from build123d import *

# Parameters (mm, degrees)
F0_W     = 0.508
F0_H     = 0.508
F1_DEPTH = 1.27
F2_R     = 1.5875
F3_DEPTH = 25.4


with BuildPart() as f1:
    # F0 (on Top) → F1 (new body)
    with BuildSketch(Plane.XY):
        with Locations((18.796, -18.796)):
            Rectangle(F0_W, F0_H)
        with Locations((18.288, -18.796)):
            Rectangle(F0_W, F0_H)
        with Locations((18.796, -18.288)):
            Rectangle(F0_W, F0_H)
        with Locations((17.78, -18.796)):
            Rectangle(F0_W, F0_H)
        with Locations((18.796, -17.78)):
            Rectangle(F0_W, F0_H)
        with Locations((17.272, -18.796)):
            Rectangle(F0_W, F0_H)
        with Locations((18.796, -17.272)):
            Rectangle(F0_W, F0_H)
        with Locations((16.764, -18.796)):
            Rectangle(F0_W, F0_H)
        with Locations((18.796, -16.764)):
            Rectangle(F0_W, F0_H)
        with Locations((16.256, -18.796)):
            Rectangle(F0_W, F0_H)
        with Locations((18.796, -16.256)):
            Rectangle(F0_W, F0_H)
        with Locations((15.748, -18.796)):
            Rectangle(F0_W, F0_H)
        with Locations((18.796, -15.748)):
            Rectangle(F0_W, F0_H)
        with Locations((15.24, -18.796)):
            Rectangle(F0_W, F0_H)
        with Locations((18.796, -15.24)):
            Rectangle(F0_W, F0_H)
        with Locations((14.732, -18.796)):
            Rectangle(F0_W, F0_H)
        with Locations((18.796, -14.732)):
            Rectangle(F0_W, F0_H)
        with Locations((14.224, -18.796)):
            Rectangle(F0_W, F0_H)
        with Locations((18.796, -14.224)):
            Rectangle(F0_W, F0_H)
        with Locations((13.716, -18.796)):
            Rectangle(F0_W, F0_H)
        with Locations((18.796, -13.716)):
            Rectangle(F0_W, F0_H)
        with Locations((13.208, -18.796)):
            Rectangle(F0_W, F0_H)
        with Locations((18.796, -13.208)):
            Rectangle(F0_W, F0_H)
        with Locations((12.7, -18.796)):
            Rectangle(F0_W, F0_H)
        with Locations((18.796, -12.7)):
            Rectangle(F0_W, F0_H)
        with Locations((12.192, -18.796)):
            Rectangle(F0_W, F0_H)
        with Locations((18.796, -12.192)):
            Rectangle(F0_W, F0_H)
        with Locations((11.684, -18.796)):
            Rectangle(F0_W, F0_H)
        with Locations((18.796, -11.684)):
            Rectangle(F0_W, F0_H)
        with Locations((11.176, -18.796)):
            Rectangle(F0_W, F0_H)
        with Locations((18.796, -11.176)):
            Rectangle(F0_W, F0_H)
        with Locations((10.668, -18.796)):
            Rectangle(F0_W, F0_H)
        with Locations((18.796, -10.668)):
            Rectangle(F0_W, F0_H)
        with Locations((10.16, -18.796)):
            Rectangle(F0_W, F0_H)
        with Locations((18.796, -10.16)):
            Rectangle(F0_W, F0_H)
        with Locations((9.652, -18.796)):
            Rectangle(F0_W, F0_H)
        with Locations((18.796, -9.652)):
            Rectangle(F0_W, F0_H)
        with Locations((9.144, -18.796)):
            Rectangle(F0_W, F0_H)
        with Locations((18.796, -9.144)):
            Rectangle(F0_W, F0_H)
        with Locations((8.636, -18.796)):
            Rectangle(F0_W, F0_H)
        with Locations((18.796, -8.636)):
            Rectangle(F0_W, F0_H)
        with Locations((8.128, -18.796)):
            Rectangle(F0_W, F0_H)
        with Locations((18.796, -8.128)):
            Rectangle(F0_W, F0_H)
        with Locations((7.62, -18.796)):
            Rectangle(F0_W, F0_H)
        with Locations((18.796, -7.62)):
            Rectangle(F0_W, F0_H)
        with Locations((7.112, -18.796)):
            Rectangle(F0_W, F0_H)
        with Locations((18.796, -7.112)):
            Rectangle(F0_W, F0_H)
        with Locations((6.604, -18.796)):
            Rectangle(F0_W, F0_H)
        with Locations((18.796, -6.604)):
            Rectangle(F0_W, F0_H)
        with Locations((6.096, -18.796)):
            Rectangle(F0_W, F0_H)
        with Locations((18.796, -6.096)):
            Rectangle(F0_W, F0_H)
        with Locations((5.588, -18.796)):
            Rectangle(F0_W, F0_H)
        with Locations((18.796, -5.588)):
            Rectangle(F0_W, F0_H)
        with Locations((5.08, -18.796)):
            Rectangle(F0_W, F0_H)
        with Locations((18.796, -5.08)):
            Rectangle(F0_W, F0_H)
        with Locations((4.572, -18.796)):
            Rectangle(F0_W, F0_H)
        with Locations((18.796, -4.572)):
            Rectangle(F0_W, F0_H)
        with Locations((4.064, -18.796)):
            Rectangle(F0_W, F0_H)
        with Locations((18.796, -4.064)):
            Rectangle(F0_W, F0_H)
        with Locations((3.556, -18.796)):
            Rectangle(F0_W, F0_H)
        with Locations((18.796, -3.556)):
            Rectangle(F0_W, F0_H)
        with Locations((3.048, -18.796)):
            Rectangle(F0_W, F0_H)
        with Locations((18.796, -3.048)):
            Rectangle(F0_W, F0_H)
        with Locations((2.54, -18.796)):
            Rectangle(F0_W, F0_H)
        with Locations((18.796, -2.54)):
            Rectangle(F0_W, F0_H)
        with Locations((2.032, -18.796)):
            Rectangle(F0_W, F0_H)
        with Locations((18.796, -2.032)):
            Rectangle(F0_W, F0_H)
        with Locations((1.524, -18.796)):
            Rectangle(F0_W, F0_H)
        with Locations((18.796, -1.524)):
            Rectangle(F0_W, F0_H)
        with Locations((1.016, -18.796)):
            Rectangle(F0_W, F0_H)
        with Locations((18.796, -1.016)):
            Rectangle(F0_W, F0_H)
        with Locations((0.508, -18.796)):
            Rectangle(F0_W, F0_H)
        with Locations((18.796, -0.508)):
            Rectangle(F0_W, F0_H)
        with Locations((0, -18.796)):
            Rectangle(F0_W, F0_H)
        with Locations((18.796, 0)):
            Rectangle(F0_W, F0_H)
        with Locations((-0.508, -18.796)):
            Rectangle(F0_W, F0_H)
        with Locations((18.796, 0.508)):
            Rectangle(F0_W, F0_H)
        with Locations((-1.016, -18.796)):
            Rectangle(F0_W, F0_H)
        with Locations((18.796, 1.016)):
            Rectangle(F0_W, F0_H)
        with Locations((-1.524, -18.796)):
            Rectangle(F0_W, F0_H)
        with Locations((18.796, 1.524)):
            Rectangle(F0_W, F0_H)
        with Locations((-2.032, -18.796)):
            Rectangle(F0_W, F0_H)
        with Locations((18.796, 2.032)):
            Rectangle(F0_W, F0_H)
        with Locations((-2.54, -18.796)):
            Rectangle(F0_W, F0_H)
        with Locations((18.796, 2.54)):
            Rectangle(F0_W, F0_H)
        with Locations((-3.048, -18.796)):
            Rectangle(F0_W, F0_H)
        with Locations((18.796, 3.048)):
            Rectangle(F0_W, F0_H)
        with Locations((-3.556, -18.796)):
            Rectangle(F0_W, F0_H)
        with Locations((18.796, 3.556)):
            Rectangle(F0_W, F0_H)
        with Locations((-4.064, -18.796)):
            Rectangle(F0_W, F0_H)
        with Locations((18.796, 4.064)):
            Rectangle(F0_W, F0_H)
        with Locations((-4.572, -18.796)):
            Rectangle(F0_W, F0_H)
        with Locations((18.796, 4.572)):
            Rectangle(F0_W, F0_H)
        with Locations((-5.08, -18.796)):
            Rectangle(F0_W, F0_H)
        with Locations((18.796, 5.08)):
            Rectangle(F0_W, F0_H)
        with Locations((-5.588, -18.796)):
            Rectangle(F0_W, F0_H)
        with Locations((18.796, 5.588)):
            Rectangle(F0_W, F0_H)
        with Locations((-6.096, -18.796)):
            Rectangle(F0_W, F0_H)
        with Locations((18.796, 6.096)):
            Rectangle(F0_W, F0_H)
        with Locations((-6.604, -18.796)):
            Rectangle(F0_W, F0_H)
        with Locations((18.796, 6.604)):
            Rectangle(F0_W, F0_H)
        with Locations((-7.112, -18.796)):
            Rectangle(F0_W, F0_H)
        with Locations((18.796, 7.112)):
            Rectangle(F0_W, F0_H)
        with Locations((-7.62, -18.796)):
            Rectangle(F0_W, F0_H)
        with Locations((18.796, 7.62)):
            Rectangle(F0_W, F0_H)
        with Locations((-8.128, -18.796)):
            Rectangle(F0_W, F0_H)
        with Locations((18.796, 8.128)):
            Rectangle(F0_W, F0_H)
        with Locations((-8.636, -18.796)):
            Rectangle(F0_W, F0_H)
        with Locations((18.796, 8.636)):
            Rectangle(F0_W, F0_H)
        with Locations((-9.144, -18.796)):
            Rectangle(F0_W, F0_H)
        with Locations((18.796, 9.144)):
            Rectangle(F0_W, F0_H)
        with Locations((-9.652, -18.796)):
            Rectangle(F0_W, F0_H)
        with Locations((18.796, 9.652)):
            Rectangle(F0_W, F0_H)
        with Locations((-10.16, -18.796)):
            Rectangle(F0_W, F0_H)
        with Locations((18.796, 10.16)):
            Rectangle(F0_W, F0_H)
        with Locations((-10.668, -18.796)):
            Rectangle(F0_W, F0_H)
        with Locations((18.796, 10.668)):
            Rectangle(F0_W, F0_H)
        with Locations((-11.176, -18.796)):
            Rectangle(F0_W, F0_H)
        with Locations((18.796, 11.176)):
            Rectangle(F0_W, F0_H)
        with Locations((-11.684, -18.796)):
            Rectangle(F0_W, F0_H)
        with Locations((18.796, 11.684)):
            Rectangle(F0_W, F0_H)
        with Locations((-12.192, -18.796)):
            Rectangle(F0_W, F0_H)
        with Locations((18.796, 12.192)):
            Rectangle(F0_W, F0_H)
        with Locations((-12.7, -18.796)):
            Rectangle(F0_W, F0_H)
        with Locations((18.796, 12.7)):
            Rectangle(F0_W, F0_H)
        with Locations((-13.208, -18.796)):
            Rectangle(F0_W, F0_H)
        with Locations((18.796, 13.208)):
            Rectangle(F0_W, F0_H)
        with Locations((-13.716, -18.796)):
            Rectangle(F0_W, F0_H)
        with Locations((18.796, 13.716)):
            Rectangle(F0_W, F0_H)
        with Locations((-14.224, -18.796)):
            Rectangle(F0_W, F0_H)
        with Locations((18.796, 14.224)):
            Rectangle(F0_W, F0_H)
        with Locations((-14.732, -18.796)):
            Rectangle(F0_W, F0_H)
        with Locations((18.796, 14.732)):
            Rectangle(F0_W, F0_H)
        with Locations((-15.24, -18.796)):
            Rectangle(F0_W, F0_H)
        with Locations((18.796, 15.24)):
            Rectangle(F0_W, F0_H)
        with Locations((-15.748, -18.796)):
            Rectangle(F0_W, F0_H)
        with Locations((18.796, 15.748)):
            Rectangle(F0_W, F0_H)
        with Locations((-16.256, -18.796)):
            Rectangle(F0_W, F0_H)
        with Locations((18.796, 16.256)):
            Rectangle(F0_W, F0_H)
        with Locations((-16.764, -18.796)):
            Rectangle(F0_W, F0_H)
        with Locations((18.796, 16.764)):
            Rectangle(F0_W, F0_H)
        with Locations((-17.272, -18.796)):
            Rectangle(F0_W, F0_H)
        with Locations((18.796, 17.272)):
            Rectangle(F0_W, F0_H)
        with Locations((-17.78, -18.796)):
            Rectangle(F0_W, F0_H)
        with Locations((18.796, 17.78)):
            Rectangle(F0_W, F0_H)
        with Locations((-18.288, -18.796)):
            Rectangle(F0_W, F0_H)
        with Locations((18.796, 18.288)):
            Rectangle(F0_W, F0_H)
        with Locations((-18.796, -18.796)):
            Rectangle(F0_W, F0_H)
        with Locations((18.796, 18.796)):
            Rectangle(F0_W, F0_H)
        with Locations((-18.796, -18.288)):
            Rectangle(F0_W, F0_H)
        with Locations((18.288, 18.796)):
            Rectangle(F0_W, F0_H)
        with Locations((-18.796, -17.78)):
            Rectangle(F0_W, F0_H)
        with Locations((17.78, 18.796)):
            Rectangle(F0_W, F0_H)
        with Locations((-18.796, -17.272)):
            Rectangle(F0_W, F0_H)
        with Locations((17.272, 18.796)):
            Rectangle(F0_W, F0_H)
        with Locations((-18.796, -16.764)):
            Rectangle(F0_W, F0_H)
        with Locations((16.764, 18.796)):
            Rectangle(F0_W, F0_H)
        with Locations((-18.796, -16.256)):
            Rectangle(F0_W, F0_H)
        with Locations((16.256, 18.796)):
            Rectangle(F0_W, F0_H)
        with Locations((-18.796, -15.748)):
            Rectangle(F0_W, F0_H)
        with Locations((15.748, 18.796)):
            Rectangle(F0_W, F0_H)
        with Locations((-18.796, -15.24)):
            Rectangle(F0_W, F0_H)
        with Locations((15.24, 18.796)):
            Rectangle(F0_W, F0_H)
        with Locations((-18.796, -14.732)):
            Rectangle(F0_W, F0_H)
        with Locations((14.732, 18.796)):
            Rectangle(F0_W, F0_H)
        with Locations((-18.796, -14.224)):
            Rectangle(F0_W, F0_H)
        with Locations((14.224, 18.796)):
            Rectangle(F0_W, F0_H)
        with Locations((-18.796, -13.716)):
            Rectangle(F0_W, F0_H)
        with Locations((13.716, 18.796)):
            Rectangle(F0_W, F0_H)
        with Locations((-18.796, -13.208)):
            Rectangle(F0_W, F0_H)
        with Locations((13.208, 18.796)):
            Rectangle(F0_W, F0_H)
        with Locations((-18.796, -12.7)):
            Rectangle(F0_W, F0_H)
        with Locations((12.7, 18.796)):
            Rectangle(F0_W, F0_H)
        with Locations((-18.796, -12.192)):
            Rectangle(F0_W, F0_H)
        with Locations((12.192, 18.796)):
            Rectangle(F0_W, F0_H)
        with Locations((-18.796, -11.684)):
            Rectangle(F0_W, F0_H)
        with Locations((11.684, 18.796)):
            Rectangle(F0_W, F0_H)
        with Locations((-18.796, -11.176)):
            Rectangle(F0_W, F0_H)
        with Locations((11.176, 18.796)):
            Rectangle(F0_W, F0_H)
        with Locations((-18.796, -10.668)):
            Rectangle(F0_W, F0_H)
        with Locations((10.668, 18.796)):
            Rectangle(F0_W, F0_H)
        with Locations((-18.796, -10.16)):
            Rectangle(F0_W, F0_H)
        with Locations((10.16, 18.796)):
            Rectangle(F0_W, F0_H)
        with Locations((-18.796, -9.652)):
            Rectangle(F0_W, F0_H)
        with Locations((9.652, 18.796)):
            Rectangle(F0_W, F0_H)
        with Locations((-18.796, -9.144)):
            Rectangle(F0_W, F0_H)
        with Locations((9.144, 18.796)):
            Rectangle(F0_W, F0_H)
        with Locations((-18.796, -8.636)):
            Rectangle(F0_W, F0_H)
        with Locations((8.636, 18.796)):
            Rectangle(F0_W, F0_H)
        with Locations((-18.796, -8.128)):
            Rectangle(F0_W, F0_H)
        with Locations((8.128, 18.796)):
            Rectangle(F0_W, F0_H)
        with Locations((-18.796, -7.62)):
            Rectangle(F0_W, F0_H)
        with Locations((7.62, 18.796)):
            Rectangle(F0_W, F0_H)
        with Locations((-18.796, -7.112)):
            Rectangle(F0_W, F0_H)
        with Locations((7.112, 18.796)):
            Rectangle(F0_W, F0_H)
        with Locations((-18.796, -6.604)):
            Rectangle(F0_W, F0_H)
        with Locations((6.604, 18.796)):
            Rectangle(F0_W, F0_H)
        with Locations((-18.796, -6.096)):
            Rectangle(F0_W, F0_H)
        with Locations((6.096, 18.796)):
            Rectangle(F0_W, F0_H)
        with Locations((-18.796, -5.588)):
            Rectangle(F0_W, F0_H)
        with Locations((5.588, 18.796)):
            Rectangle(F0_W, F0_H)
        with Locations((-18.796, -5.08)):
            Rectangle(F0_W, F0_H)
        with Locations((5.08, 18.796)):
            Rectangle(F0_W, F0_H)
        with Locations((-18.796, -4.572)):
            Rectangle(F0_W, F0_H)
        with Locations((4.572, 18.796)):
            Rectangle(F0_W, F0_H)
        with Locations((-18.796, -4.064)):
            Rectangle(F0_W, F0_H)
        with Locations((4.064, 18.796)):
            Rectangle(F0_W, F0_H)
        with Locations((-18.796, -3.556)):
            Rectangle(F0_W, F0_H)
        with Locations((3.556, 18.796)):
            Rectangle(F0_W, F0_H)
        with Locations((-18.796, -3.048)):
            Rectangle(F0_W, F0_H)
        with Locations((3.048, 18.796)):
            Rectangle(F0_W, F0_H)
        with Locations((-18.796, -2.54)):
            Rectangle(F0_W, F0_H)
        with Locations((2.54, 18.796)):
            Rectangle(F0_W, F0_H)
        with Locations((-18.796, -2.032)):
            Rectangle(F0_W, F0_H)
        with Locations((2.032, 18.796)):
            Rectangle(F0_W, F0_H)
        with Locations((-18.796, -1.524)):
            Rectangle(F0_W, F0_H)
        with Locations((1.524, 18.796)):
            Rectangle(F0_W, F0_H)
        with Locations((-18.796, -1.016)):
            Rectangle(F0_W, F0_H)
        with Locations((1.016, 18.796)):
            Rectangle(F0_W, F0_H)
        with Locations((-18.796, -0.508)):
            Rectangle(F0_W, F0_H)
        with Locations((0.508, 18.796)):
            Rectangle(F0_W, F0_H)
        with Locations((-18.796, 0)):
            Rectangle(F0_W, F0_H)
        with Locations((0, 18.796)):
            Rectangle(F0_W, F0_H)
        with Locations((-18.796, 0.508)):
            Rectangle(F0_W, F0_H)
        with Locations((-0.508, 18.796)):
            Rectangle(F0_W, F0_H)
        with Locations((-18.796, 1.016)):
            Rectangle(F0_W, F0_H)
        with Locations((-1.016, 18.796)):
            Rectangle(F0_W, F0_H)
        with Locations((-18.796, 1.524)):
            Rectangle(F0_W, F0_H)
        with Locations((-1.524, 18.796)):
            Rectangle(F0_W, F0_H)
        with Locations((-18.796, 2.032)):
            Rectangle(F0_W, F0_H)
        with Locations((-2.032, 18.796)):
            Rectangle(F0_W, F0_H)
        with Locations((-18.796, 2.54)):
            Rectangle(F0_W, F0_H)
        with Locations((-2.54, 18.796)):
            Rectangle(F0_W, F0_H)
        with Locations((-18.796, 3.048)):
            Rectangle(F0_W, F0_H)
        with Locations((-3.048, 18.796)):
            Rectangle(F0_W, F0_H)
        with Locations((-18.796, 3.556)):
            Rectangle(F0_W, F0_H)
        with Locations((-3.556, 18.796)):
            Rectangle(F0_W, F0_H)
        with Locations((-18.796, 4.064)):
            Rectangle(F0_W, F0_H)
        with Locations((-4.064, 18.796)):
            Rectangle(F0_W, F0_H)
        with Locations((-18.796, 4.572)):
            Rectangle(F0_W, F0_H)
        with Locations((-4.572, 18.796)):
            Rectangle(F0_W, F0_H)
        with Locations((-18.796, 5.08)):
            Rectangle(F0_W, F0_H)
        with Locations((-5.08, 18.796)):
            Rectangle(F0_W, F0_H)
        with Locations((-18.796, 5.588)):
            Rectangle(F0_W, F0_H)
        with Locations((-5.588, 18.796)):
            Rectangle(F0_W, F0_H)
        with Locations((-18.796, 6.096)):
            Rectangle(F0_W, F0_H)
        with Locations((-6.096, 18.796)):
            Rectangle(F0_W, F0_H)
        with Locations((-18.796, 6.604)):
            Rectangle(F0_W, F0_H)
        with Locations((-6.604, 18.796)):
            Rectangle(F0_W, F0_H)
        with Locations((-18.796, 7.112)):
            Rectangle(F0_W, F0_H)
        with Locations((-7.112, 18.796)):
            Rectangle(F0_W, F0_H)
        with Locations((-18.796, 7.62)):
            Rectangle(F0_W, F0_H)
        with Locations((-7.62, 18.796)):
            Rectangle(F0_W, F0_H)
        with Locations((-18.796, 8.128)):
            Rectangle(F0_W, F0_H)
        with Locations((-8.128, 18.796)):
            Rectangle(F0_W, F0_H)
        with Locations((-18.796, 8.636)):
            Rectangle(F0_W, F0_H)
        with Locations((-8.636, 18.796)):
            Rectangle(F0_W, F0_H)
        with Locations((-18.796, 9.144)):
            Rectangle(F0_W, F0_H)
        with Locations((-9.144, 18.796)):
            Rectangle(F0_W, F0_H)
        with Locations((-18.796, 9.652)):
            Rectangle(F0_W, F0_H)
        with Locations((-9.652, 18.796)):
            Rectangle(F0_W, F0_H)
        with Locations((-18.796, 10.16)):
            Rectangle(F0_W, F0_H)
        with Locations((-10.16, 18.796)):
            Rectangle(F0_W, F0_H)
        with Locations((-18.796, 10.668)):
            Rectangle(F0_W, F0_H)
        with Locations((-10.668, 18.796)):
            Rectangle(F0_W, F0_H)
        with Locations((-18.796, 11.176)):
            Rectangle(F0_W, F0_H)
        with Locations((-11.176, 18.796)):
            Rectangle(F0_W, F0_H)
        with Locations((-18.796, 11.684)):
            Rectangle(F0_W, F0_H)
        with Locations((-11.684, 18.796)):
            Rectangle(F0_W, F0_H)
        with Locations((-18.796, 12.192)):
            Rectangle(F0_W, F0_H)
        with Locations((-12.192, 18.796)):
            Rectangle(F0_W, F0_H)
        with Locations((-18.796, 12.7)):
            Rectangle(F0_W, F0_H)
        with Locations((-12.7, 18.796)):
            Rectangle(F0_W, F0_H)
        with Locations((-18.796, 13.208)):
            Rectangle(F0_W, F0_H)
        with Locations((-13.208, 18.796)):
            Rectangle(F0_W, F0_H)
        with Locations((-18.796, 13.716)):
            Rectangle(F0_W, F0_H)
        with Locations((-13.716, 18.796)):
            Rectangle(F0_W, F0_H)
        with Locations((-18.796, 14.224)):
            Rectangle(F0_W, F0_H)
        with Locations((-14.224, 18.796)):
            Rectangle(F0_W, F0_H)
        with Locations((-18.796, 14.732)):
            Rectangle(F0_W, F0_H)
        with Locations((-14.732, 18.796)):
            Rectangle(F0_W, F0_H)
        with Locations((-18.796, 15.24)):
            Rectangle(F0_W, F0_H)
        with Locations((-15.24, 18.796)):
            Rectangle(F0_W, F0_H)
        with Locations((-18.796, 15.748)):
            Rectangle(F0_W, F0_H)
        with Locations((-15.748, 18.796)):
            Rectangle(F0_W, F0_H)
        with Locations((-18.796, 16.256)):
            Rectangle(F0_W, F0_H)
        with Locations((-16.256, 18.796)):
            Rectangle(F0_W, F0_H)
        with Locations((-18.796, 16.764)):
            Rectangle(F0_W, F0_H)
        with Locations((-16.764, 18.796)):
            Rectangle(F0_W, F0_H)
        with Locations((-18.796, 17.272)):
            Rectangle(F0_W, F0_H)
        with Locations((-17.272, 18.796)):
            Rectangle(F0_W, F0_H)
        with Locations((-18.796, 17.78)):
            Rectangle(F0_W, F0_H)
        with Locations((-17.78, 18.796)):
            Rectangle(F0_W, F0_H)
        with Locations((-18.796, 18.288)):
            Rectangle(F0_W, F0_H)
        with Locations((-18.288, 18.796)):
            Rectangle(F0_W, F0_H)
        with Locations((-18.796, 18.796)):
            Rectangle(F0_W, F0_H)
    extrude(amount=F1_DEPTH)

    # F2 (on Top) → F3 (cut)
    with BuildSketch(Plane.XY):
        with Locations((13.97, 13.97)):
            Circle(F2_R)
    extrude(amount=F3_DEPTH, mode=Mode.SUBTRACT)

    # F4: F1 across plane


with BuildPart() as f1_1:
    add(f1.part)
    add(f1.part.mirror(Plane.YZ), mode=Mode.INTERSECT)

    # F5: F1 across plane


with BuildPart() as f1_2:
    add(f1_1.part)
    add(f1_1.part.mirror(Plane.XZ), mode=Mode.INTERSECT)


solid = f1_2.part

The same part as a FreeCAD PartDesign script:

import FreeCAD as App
import Part
import Sketcher
Q = App.Units.Quantity

doc = App.newDocument("Part")
body = doc.addObject("PartDesign::Body", "Body")

# Sketch on XY plane
sketch1 = doc.addObject("Sketcher::SketchObject", "Sketch")
body.addObject(sketch1)
sketch1.AttachmentSupport = (doc.XY_Plane, [""])
sketch1.MapMode = "FlatFace"
sketch1.addGeometry(Part.LineSegment(App.Vector(19, 19, 0), App.Vector(-19, 19, 0)), False)
sketch1.addGeometry(Part.LineSegment(App.Vector(-19, 19, 0), App.Vector(-19, -19, 0)), False)
sketch1.addGeometry(Part.LineSegment(App.Vector(-19, -19, 0), App.Vector(19, -19, 0)), False)
sketch1.addGeometry(Part.LineSegment(App.Vector(19, -19, 0), App.Vector(19, 19, 0)), False)
sketch1.addGeometry(Part.LineSegment(App.Vector(-19, -19, 0), App.Vector(-19, 19, 0)), False)
sketch1.addGeometry(Part.LineSegment(App.Vector(-19, 19, 0), App.Vector(19, 19, 0)), False)
sketch1.addGeometry(Part.LineSegment(App.Vector(19, 19, 0), App.Vector(19, -19, 0)), False)
sketch1.addGeometry(Part.LineSegment(App.Vector(19, -19, 0), App.Vector(-19, -19, 0)), False)
sketch1.addConstraint(Sketcher.Constraint("Coincident", 0, 2, 1, 1))
sketch1.addConstraint(Sketcher.Constraint("Coincident", 1, 2, 2, 1))
sketch1.addConstraint(Sketcher.Constraint("Coincident", 2, 2, 3, 1))
sketch1.addConstraint(Sketcher.Constraint("Coincident", 3, 2, 0, 1))
sketch1.addConstraint(Sketcher.Constraint("Coincident", 4, 2, 5, 1))
sketch1.addConstraint(Sketcher.Constraint("Coincident", 5, 2, 6, 1))
sketch1.addConstraint(Sketcher.Constraint("Coincident", 6, 2, 7, 1))
sketch1.addConstraint(Sketcher.Constraint("Coincident", 7, 2, 4, 1))
sketch1.addConstraint(Sketcher.Constraint("Horizontal", 0))
sketch1.addConstraint(Sketcher.Constraint("Vertical", 1))
sketch1.addConstraint(Sketcher.Constraint("Horizontal", 2))
sketch1.addConstraint(Sketcher.Constraint("Vertical", 3))
sketch1.addConstraint(Sketcher.Constraint("Vertical", 4))
sketch1.addConstraint(Sketcher.Constraint("Horizontal", 5))
sketch1.addConstraint(Sketcher.Constraint("Vertical", 6))
sketch1.addConstraint(Sketcher.Constraint("Horizontal", 7))
sketch1.addConstraint(Sketcher.Constraint("Symmetric", 0, 2, 2, 2, -1, 1))
sketch1.addConstraint(Sketcher.Constraint("Symmetric", 4, 2, 6, 2, -1, 1))
sketch1.addConstraint(Sketcher.Constraint("Equal", 2, 1))
sketch1.addConstraint(Sketcher.Constraint("Equal", 7, 4))
sketch1.addConstraint(Sketcher.Constraint("DistanceX", 0, 2, 0, 1, Q("1.5 in")))
sketch1.addConstraint(Sketcher.Constraint("DistanceX", 5, 1, 5, 2, Q("1.46 in")))
pad1 = doc.addObject("PartDesign::Pad", "Pad")
body.addObject(pad1)
pad1.Profile = sketch1
pad1.Length = Q("0.05 in")

# Sketch on XY plane
sketch2 = doc.addObject("Sketcher::SketchObject", "Sketch001")
body.addObject(sketch2)
sketch2.AttachmentSupport = (doc.XY_Plane, [""])
sketch2.MapMode = "FlatFace"
sketch2.addGeometry(Part.Circle(App.Vector(14, 14, 0), App.Vector(0, 0, 1), 1.6), False)
sketch2.addConstraint(Sketcher.Constraint("Diameter", 0, Q("0.125 in")))
sketch2.addConstraint(Sketcher.Constraint("DistanceX", -1, 1, 0, 3, Q("0.55 in")))
sketch2.addConstraint(Sketcher.Constraint("DistanceY", -1, 1, 0, 3, Q("0.55 in")))
pocket1 = doc.addObject("PartDesign::Pocket", "Pocket")
body.addObject(pocket1)
pocket1.Profile = sketch2
pocket1.Length = Q("1 in")
pocket1.Reversed = True
body2 = doc.addObject("PartDesign::Body", "Body001")
doc.recompute()

body2.BaseFeature = body
doc.recompute()

mirroring = doc.addObject("Part::Mirroring", "Mirroring")
mirroring.Source = body
mirroring.Base = App.Vector(0, 0, 0)
mirroring.Normal = App.Vector(1, 0, 0)
body3 = doc.addObject("PartDesign::Body", "Body002")
body3.BaseFeature = mirroring
boolean = doc.addObject("PartDesign::Boolean", "Boolean")
body2.addObject(boolean)
boolean.Type = "Common"
boolean.addObjects([body3])
doc.recompute()
body4 = doc.addObject("PartDesign::Body", "Body003")
doc.recompute()

body4.BaseFeature = body2
doc.recompute()

mirroring2 = doc.addObject("Part::Mirroring", "Mirroring001")
mirroring2.Source = body2
mirroring2.Base = App.Vector(0, 0, 0)
mirroring2.Normal = App.Vector(0, -1, 0)
body5 = doc.addObject("PartDesign::Body", "Body004")
body5.BaseFeature = mirroring2
boolean2 = doc.addObject("PartDesign::Boolean", "Boolean001")
body4.addObject(boolean2)
boolean2.Type = "Common"
boolean2.addObjects([body5])
doc.recompute()
mirroring.Visibility = False
mirroring2.Visibility = False

doc.recompute()
